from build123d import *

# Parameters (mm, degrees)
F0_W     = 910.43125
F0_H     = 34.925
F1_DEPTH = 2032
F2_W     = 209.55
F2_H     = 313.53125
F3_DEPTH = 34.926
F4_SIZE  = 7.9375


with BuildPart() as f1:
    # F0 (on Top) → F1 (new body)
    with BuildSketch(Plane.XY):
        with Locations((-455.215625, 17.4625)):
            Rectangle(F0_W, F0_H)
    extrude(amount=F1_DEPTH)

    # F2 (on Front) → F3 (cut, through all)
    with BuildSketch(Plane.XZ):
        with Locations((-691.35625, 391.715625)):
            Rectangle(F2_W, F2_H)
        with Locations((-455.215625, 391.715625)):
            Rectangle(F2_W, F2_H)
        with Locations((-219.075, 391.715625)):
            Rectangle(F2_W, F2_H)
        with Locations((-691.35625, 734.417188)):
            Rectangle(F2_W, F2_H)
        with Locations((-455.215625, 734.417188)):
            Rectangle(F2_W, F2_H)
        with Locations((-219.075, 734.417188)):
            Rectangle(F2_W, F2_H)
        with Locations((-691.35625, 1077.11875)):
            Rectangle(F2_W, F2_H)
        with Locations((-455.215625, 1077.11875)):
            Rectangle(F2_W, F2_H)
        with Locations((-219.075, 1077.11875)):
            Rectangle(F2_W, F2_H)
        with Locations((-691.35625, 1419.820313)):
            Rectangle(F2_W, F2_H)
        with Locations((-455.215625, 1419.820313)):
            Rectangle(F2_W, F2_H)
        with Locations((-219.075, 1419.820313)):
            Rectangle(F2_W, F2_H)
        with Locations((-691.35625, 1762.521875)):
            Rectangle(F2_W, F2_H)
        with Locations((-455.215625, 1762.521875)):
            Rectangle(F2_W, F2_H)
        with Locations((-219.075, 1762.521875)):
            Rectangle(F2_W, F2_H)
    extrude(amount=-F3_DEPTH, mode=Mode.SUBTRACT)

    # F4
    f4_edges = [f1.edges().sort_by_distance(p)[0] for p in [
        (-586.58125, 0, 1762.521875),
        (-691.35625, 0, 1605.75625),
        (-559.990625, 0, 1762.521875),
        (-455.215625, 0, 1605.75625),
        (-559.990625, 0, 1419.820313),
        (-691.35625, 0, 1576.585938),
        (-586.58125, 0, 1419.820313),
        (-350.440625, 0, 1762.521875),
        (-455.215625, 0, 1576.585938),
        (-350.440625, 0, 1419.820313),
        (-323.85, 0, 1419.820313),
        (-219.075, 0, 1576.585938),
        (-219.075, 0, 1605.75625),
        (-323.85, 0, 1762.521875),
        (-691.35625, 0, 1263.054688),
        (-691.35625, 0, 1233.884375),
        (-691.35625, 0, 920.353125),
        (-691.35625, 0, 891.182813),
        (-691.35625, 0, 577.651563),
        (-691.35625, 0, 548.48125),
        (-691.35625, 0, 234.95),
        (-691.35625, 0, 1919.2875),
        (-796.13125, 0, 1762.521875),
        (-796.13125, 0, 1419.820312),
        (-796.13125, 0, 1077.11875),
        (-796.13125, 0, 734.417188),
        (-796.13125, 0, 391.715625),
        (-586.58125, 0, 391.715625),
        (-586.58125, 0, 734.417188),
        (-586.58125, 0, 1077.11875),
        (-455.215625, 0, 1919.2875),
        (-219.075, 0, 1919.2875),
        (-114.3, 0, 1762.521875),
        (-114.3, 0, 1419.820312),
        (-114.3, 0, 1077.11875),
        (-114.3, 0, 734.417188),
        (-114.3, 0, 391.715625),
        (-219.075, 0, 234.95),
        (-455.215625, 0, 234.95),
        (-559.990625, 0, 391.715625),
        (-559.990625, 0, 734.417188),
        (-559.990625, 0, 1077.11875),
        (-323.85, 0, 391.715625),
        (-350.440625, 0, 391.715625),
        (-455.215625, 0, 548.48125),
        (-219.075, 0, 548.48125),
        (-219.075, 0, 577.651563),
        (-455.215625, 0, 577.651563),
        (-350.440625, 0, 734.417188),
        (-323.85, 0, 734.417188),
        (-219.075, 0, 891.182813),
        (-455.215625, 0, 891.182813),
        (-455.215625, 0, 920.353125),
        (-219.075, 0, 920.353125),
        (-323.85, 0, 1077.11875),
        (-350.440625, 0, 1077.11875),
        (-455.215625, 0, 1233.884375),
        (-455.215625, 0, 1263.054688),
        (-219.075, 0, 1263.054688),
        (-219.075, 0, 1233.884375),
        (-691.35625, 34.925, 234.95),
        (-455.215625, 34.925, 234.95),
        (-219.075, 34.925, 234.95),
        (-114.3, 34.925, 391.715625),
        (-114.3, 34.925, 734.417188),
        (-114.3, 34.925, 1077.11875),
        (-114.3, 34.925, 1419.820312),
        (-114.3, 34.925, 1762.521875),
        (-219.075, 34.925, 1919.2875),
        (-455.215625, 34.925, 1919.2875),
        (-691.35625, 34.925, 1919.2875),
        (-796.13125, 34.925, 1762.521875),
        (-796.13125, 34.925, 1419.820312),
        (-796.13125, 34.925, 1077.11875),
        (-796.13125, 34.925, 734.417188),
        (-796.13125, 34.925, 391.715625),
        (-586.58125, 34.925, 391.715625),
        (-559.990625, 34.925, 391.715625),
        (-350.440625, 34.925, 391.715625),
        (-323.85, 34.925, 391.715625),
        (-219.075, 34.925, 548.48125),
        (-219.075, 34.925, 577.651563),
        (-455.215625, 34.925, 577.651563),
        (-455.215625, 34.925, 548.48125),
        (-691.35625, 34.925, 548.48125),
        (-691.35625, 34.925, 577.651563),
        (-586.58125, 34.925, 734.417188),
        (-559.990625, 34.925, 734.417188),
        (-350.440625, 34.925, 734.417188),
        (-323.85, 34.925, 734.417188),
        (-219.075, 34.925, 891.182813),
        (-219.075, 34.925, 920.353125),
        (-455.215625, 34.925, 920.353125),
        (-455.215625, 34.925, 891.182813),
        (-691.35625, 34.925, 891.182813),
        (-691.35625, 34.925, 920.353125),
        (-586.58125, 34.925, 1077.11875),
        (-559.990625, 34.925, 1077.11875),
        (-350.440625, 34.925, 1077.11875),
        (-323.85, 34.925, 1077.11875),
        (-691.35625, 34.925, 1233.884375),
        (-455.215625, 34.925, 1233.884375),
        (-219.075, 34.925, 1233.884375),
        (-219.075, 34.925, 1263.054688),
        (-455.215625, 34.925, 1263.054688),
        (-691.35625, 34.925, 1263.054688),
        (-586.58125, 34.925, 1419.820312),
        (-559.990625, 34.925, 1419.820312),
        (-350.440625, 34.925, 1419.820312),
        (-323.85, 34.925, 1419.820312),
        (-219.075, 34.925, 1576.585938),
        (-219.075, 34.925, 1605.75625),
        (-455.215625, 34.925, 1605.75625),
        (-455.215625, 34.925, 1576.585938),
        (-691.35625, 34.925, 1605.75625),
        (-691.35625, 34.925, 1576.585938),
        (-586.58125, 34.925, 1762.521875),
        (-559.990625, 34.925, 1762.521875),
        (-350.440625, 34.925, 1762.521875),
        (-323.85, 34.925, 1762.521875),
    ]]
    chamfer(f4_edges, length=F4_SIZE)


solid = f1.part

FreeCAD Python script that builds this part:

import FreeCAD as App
import Part
import Sketcher
from FreeCAD import Vector
Q = App.Units.Quantity


def edges_at(feature, points):
    """Names of the edges that pass closest to the given points."""
    edges = feature.Shape.Edges
    near = lambda p: min(range(len(edges)), key=lambda i: edges[i].distToShape(Part.Vertex(*p))[0])
    return sorted({f"Edge{near(p) + 1}" for p in points})


def add_polygon(sketch, points):
    """Adds a closed chain of lines whose ends are joined by coincident constraints."""
    first, n = sketch.GeometryCount, len(points)
    for a, b in zip(points, points[1:] + points[:1]):
        sketch.addGeometry(Part.LineSegment(App.Vector(*a, 0), App.Vector(*b, 0)), False)
    for i in range(n):
        sketch.addConstraint(Sketcher.Constraint("Coincident", first + i, 2, first + (i + 1) % n, 1))

doc = App.newDocument("Part")
body = doc.addObject("PartDesign::Body", "Body")

sketch1 = doc.addObject("Sketcher::SketchObject", "Sketch")
body.addObject(sketch1)
sketch1.AttachmentSupport = (doc.XY_Plane, [""])
sketch1.MapMode = "FlatFace"
add_polygon(sketch1, [(-910.43125, 34.925), (-910.43125, 0), (0, 0), (0, 34.925)])
sketch1.addConstraint([
    Sketcher.Constraint("Vertical", 0),
    Sketcher.Constraint("Horizontal", 1),
    Sketcher.Constraint("Vertical", 2),
    Sketcher.Constraint("Horizontal", 3),
    Sketcher.Constraint("Coincident", 1, 2, -1, 1),
    Sketcher.Constraint("DistanceX", 1, 1, 1, 2, Q("35.84375 in")),
    Sketcher.Constraint("DistanceY", 0, 2, 0, 1, Q("1.375 in")),
])
pad1 = doc.addObject("PartDesign::Pad", "Pad")
body.addObject(pad1)
pad1.Profile = sketch1
pad1.Length = Q("80 in")

sketch2 = doc.addObject("Sketcher::SketchObject", "Sketch001")
body.addObject(sketch2)
sketch2.AttachmentSupport = (doc.XZ_Plane, [""])
sketch2.MapMode = "FlatFace"
add_polygon(sketch2, [(-796.13125, 548.48125), (-796.13125, 234.95), (-586.58125, 234.95), (-586.58125, 548.48125)])
add_polygon(sketch2, [(-559.990625, 548.48125), (-559.990625, 234.95), (-350.440625, 234.95), (-350.440625, 548.48125)])
add_polygon(sketch2, [(-323.85, 548.48125), (-323.85, 234.95), (-114.3, 234.95), (-114.3, 548.48125)])
add_polygon(sketch2, [(-796.13125, 891.182813), (-796.13125, 577.651563), (-586.58125, 577.651563), (-586.58125, 891.182813)])
add_polygon(sketch2, [(-559.990625, 891.182813), (-559.990625, 577.651563), (-350.440625, 577.651563), (-350.440625, 891.182813)])
add_polygon(sketch2, [(-323.85, 891.182813), (-323.85, 577.651563), (-114.3, 577.651563), (-114.3, 891.182813)])
add_polygon(sketch2, [(-796.13125, 1233.884375), (-796.13125, 920.353125), (-586.58125, 920.353125), (-586.58125, 1233.884375)])
add_polygon(sketch2, [(-559.990625, 1233.884375), (-559.990625, 920.353125), (-350.440625, 920.353125), (-350.440625, 1233.884375)])
add_polygon(sketch2, [(-323.85, 1233.884375), (-323.85, 920.353125), (-114.3, 920.353125), (-114.3, 1233.884375)])
add_polygon(sketch2, [(-796.13125, 1576.585938), (-796.13125, 1263.054688), (-586.58125, 1263.054688), (-586.58125, 1576.585938)])
add_polygon(sketch2, [(-559.990625, 1576.585938), (-559.990625, 1263.054688), (-350.440625, 1263.054688), (-350.440625, 1576.585938)])
add_polygon(sketch2, [(-323.85, 1576.585938), (-323.85, 1263.054688), (-114.3, 1263.054688), (-114.3, 1576.585938)])
add_polygon(sketch2, [(-796.13125, 1919.2875), (-796.13125, 1605.75625), (-586.58125, 1605.75625), (-586.58125, 1919.2875)])
add_polygon(sketch2, [(-559.990625, 1919.2875), (-559.990625, 1605.75625), (-350.440625, 1605.75625), (-350.440625, 1919.2875)])
add_polygon(sketch2, [(-323.85, 1919.2875), (-323.85, 1605.75625), (-114.3, 1605.75625), (-114.3, 1919.2875)])
sketch2.addConstraint([
    Sketcher.Constraint("Vertical", 0),
    Sketcher.Constraint("Horizontal", 1),
    Sketcher.Constraint("Vertical", 2),
    Sketcher.Constraint("Horizontal", 3),
    Sketcher.Constraint("Vertical", 4),
    Sketcher.Constraint("Horizontal", 5),
    Sketcher.Constraint("Vertical", 6),
    Sketcher.Constraint("Horizontal", 7),
    Sketcher.Constraint("Vertical", 8),
    Sketcher.Constraint("Horizontal", 9),
    Sketcher.Constraint("Vertical", 10),
    Sketcher.Constraint("Horizontal", 11),
    Sketcher.Constraint("Vertical", 12),
    Sketcher.Constraint("Horizontal", 13),
    Sketcher.Constraint("Vertical", 14),
    Sketcher.Constraint("Horizontal", 15),
    Sketcher.Constraint("Vertical", 16),
    Sketcher.Constraint("Horizontal", 17),
    Sketcher.Constraint("Vertical", 18),
    Sketcher.Constraint("Horizontal", 19),
    Sketcher.Constraint("Vertical", 20),
    Sketcher.Constraint("Horizontal", 21),
    Sketcher.Constraint("Vertical", 22),
    Sketcher.Constraint("Horizontal", 23),
    Sketcher.Constraint("Vertical", 24),
    Sketcher.Constraint("Horizontal", 25),
    Sketcher.Constraint("Vertical", 26),
    Sketcher.Constraint("Horizontal", 27),
    Sketcher.Constraint("Vertical", 28),
    Sketcher.Constraint("Horizontal", 29),
    Sketcher.Constraint("Vertical", 30),
    Sketcher.Constraint("Horizontal", 31),
    Sketcher.Constraint("Vertical", 32),
    Sketcher.Constraint("Horizontal", 33),
    Sketcher.Constraint("Vertical", 34),
    Sketcher.Constraint("Horizontal", 35),
    Sketcher.Constraint("Vertical", 36),
    Sketcher.Constraint("Horizontal", 37),
    Sketcher.Constraint("Vertical", 38),
    Sketcher.Constraint("Horizontal", 39),
    Sketcher.Constraint("Vertical", 40),
    Sketcher.Constraint("Horizontal", 41),
    Sketcher.Constraint("Vertical", 42),
    Sketcher.Constraint("Horizontal", 43),
    Sketcher.Constraint("Vertical", 44),
    Sketcher.Constraint("Horizontal", 45),
    Sketcher.Constraint("Vertical", 46),
    Sketcher.Constraint("Horizontal", 47),
    Sketcher.Constraint("Vertical", 48),
    Sketcher.Constraint("Horizontal", 49),
    Sketcher.Constraint("Vertical", 50),
    Sketcher.Constraint("Horizontal", 51),
    Sketcher.Constraint("Vertical", 52),
    Sketcher.Constraint("Horizontal", 53),
    Sketcher.Constraint("Vertical", 54),
    Sketcher.Constraint("Horizontal", 55),
    Sketcher.Constraint("Vertical", 56),
    Sketcher.Constraint("Horizontal", 57),
    Sketcher.Constraint("Vertical", 58),
    Sketcher.Constraint("Horizontal", 59),
    Sketcher.Constraint("Horizontal", 1, 2, 4, 2),
    Sketcher.Constraint("Horizontal", 3, 2, 6, 2),
    Sketcher.Constraint("Horizontal", 5, 2, 8, 2),
    Sketcher.Constraint("Horizontal", 7, 2, 10, 2),
    Sketcher.Constraint("Horizontal", 13, 2, 16, 2),
    Sketcher.Constraint("Horizontal", 15, 2, 18, 2),
    Sketcher.Constraint("Horizontal", 17, 2, 20, 2),
    Sketcher.Constraint("Horizontal", 19, 2, 22, 2),
    Sketcher.Constraint("Horizontal", 25, 2, 28, 2),
    Sketcher.Constraint("Horizontal", 27, 2, 30, 2),
    Sketcher.Constraint("Horizontal", 29, 2, 32, 2),
    Sketcher.Constraint("Horizontal", 31, 2, 34, 2),
    Sketcher.Constraint("Horizontal", 37, 2, 40, 2),
    Sketcher.Constraint("Horizontal", 39, 2, 42, 2),
    Sketcher.Constraint("Horizontal", 41, 2, 44, 2),
    Sketcher.Constraint("Horizontal", 43, 2, 46, 2),
    Sketcher.Constraint("Horizontal", 49, 2, 52, 2),
    Sketcher.Constraint("Horizontal", 51, 2, 54, 2),
    Sketcher.Constraint("Horizontal", 53, 2, 56, 2),
    Sketcher.Constraint("Horizontal", 55, 2, 58, 2),
    Sketcher.Constraint("Vertical", 3, 2, 12, 2),
    Sketcher.Constraint("Vertical", 2, 2, 13, 2),
    Sketcher.Constraint("Vertical", 7, 2, 16, 2),
    Sketcher.Constraint("Vertical", 6, 2, 17, 2),
    Sketcher.Constraint("Vertical", 11, 2, 20, 2),
    Sketcher.Constraint("Vertical", 10, 2, 21, 2),
    Sketcher.Constraint("Vertical", 15, 2, 24, 2),
    Sketcher.Constraint("Vertical", 14, 2, 25, 2),
    Sketcher.Constraint("Vertical", 19, 2, 28, 2),
    Sketcher.Constraint("Vertical", 18, 2, 29, 2),
    Sketcher.Constraint("Vertical", 23, 2, 32, 2),
    Sketcher.Constraint("Vertical", 22, 2, 33, 2),
    Sketcher.Constraint("Vertical", 27, 2, 36, 2),
    Sketcher.Constraint("Vertical", 26, 2, 37, 2),
    Sketcher.Constraint("Vertical", 31, 2, 40, 2),
    Sketcher.Constraint("Vertical", 30, 2, 41, 2),
    Sketcher.Constraint("Vertical", 35, 2, 44, 2),
    Sketcher.Constraint("Vertical", 34, 2, 45, 2),
    Sketcher.Constraint("Vertical", 39, 2, 48, 2),
    Sketcher.Constraint("Vertical", 38, 2, 49, 2),
    Sketcher.Constraint("Vertical", 43, 2, 52, 2),
    Sketcher.Constraint("Vertical", 42, 2, 53, 2),
    Sketcher.Constraint("Vertical", 47, 2, 56, 2),
    Sketcher.Constraint("Vertical", 46, 2, 57, 2),
    Sketcher.Constraint("Equal", 3, 5),
    Sketcher.Constraint("Equal", 7, 9),
    Sketcher.Constraint("Equal", 10, 12),
    Sketcher.Constraint("Equal", 22, 24),
    Sketcher.Constraint("Equal", 34, 36),
    Sketcher.Constraint("Equal", 46, 48),
    Sketcher.Constraint("DistanceX", 1, 1, 1, 2, Q("8.25 in")),
    Sketcher.Constraint("DistanceX", 9, 2, -1, 1, Q("4.5 in")),
    Sketcher.Constraint("DistanceY", 0, 2, 0, 1, Q("12.34375 in")),
    Sketcher.Constraint("DistanceY", -1, 1, 0, 2, Q("9.25 in")),
    Sketcher.Constraint("DistanceX", 0, 2, -1, 1, Q("31.34375 in")),
    Sketcher.Constraint("DistanceX", 4, 2, -1, 1, Q("22.046875 in")),
    Sketcher.Constraint("DistanceY", -1, 1, 24, 2, Q("36.234375 in")),
    Sketcher.Constraint("DistanceY", -1, 1, 48, 2, Q("63.21875 in")),
    Sketcher.Constraint("DistanceY", 15, 2, 36, 2, Q("14.640625 in")),
    Sketcher.Constraint("DistanceY", -1, 1, 36, 2, 1263.054688),
])
pocket1 = doc.addObject("PartDesign::Pocket", "Pocket")
body.addObject(pocket1)
pocket1.Profile = sketch2
pocket1.Type = "ThroughAll"
doc.recompute()

chamfer = doc.addObject("PartDesign::Chamfer", "Chamfer")
body.addObject(chamfer)
chamfer.Base = (pocket1, edges_at(pocket1, [
    (-586.581, 0, 1762.522),
    (-691.356, 0, 1605.756),
    (-559.991, 0, 1762.522),
    (-455.216, 0, 1605.756),
    (-559.991, 0, 1419.82),
    (-691.356, 0, 1576.586),
    (-586.581, 0, 1419.82),
    (-350.441, 0, 1762.522),
    (-455.216, 0, 1576.586),
    (-350.441, 0, 1419.82),
    (-323.85, 0, 1419.82),
    (-219.075, 0, 1576.586),
    (-219.075, 0, 1605.756),
    (-323.85, 0, 1762.522),
    (-691.356, 0, 1263.055),
    (-691.356, 0, 1233.884),
    (-691.356, 0, 920.353),
    (-691.356, 0, 891.183),
    (-691.356, 0, 577.652),
    (-691.356, 0, 548.481),
    (-691.356, 0, 234.95),
    (-691.356, 0, 1919.287),
    (-796.131, 0, 1762.522),
    (-796.131, 0, 1419.82),
    (-796.131, 0, 1077.119),
    (-796.131, 0, 734.417),
    (-796.131, 0, 391.716),
    (-586.581, 0, 391.716),
    (-586.581, 0, 734.417),
    (-586.581, 0, 1077.119),
    (-455.216, 0, 1919.287),
    (-219.075, 0, 1919.287),
    (-114.3, 0, 1762.522),
    (-114.3, 0, 1419.82),
    (-114.3, 0, 1077.119),
    (-114.3, 0, 734.417),
    (-114.3, 0, 391.716),
    (-219.075, 0, 234.95),
    (-455.216, 0, 234.95),
    (-559.991, 0, 391.716),
    (-559.991, 0, 734.417),
    (-559.991, 0, 1077.119),
    (-323.85, 0, 391.716),
    (-350.441, 0, 391.716),
    (-455.216, 0, 548.481),
    (-219.075, 0, 548.481),
    (-219.075, 0, 577.652),
    (-455.216, 0, 577.652),
    (-350.441, 0, 734.417),
    (-323.85, 0, 734.417),
    (-219.075, 0, 891.183),
    (-455.216, 0, 891.183),
    (-455.216, 0, 920.353),
    (-219.075, 0, 920.353),
    (-323.85, 0, 1077.119),
    (-350.441, 0, 1077.119),
    (-455.216, 0, 1233.884),
    (-455.216, 0, 1263.055),
    (-219.075, 0, 1263.055),
    (-219.075, 0, 1233.884),
    (-691.356, 34.925, 234.95),
    (-455.216, 34.925, 234.95),
    (-219.075, 34.925, 234.95),
    (-114.3, 34.925, 391.716),
    (-114.3, 34.925, 734.417),
    (-114.3, 34.925, 1077.119),
    (-114.3, 34.925, 1419.82),
    (-114.3, 34.925, 1762.522),
    (-219.075, 34.925, 1919.287),
    (-455.216, 34.925, 1919.287),
    (-691.356, 34.925, 1919.287),
    (-796.131, 34.925, 1762.522),
    (-796.131, 34.925, 1419.82),
    (-796.131, 34.925, 1077.119),
    (-796.131, 34.925, 734.417),
    (-796.131, 34.925, 391.716),
    (-586.581, 34.925, 391.716),
    (-559.991, 34.925, 391.716),
    (-350.441, 34.925, 391.716),
    (-323.85, 34.925, 391.716),
    (-219.075, 34.925, 548.481),
    (-219.075, 34.925, 577.652),
    (-455.216, 34.925, 577.652),
    (-455.216, 34.925, 548.481),
    (-691.356, 34.925, 548.481),
    (-691.356, 34.925, 577.652),
    (-586.581, 34.925, 734.417),
    (-559.991, 34.925, 734.417),
    (-350.441, 34.925, 734.417),
    (-323.85, 34.925, 734.417),
    (-219.075, 34.925, 891.183),
    (-219.075, 34.925, 920.353),
    (-455.216, 34.925, 920.353),
    (-455.216, 34.925, 891.183),
    (-691.356, 34.925, 891.183),
    (-691.356, 34.925, 920.353),
    (-586.581, 34.925, 1077.119),
    (-559.991, 34.925, 1077.119),
    (-350.441, 34.925, 1077.119),
    (-323.85, 34.925, 1077.119),
    (-691.356, 34.925, 1233.884),
    (-455.216, 34.925, 1233.884),
    (-219.075, 34.925, 1233.884),
    (-219.075, 34.925, 1263.055),
    (-455.216, 34.925, 1263.055),
    (-691.356, 34.925, 1263.055),
    (-586.581, 34.925, 1419.82),
    (-559.991, 34.925, 1419.82),
    (-350.441, 34.925, 1419.82),
    (-323.85, 34.925, 1419.82),
    (-219.075, 34.925, 1576.586),
    (-219.075, 34.925, 1605.756),
    (-455.216, 34.925, 1605.756),
    (-455.216, 34.925, 1576.586),
    (-691.356, 34.925, 1605.756),
    (-691.356, 34.925, 1576.586),
    (-586.581, 34.925, 1762.522),
    (-559.991, 34.925, 1762.522),
    (-350.441, 34.925, 1762.522),
    (-323.85, 34.925, 1762.522),
]))
chamfer.Size = Q("0.3125 in")

doc.recompute()
